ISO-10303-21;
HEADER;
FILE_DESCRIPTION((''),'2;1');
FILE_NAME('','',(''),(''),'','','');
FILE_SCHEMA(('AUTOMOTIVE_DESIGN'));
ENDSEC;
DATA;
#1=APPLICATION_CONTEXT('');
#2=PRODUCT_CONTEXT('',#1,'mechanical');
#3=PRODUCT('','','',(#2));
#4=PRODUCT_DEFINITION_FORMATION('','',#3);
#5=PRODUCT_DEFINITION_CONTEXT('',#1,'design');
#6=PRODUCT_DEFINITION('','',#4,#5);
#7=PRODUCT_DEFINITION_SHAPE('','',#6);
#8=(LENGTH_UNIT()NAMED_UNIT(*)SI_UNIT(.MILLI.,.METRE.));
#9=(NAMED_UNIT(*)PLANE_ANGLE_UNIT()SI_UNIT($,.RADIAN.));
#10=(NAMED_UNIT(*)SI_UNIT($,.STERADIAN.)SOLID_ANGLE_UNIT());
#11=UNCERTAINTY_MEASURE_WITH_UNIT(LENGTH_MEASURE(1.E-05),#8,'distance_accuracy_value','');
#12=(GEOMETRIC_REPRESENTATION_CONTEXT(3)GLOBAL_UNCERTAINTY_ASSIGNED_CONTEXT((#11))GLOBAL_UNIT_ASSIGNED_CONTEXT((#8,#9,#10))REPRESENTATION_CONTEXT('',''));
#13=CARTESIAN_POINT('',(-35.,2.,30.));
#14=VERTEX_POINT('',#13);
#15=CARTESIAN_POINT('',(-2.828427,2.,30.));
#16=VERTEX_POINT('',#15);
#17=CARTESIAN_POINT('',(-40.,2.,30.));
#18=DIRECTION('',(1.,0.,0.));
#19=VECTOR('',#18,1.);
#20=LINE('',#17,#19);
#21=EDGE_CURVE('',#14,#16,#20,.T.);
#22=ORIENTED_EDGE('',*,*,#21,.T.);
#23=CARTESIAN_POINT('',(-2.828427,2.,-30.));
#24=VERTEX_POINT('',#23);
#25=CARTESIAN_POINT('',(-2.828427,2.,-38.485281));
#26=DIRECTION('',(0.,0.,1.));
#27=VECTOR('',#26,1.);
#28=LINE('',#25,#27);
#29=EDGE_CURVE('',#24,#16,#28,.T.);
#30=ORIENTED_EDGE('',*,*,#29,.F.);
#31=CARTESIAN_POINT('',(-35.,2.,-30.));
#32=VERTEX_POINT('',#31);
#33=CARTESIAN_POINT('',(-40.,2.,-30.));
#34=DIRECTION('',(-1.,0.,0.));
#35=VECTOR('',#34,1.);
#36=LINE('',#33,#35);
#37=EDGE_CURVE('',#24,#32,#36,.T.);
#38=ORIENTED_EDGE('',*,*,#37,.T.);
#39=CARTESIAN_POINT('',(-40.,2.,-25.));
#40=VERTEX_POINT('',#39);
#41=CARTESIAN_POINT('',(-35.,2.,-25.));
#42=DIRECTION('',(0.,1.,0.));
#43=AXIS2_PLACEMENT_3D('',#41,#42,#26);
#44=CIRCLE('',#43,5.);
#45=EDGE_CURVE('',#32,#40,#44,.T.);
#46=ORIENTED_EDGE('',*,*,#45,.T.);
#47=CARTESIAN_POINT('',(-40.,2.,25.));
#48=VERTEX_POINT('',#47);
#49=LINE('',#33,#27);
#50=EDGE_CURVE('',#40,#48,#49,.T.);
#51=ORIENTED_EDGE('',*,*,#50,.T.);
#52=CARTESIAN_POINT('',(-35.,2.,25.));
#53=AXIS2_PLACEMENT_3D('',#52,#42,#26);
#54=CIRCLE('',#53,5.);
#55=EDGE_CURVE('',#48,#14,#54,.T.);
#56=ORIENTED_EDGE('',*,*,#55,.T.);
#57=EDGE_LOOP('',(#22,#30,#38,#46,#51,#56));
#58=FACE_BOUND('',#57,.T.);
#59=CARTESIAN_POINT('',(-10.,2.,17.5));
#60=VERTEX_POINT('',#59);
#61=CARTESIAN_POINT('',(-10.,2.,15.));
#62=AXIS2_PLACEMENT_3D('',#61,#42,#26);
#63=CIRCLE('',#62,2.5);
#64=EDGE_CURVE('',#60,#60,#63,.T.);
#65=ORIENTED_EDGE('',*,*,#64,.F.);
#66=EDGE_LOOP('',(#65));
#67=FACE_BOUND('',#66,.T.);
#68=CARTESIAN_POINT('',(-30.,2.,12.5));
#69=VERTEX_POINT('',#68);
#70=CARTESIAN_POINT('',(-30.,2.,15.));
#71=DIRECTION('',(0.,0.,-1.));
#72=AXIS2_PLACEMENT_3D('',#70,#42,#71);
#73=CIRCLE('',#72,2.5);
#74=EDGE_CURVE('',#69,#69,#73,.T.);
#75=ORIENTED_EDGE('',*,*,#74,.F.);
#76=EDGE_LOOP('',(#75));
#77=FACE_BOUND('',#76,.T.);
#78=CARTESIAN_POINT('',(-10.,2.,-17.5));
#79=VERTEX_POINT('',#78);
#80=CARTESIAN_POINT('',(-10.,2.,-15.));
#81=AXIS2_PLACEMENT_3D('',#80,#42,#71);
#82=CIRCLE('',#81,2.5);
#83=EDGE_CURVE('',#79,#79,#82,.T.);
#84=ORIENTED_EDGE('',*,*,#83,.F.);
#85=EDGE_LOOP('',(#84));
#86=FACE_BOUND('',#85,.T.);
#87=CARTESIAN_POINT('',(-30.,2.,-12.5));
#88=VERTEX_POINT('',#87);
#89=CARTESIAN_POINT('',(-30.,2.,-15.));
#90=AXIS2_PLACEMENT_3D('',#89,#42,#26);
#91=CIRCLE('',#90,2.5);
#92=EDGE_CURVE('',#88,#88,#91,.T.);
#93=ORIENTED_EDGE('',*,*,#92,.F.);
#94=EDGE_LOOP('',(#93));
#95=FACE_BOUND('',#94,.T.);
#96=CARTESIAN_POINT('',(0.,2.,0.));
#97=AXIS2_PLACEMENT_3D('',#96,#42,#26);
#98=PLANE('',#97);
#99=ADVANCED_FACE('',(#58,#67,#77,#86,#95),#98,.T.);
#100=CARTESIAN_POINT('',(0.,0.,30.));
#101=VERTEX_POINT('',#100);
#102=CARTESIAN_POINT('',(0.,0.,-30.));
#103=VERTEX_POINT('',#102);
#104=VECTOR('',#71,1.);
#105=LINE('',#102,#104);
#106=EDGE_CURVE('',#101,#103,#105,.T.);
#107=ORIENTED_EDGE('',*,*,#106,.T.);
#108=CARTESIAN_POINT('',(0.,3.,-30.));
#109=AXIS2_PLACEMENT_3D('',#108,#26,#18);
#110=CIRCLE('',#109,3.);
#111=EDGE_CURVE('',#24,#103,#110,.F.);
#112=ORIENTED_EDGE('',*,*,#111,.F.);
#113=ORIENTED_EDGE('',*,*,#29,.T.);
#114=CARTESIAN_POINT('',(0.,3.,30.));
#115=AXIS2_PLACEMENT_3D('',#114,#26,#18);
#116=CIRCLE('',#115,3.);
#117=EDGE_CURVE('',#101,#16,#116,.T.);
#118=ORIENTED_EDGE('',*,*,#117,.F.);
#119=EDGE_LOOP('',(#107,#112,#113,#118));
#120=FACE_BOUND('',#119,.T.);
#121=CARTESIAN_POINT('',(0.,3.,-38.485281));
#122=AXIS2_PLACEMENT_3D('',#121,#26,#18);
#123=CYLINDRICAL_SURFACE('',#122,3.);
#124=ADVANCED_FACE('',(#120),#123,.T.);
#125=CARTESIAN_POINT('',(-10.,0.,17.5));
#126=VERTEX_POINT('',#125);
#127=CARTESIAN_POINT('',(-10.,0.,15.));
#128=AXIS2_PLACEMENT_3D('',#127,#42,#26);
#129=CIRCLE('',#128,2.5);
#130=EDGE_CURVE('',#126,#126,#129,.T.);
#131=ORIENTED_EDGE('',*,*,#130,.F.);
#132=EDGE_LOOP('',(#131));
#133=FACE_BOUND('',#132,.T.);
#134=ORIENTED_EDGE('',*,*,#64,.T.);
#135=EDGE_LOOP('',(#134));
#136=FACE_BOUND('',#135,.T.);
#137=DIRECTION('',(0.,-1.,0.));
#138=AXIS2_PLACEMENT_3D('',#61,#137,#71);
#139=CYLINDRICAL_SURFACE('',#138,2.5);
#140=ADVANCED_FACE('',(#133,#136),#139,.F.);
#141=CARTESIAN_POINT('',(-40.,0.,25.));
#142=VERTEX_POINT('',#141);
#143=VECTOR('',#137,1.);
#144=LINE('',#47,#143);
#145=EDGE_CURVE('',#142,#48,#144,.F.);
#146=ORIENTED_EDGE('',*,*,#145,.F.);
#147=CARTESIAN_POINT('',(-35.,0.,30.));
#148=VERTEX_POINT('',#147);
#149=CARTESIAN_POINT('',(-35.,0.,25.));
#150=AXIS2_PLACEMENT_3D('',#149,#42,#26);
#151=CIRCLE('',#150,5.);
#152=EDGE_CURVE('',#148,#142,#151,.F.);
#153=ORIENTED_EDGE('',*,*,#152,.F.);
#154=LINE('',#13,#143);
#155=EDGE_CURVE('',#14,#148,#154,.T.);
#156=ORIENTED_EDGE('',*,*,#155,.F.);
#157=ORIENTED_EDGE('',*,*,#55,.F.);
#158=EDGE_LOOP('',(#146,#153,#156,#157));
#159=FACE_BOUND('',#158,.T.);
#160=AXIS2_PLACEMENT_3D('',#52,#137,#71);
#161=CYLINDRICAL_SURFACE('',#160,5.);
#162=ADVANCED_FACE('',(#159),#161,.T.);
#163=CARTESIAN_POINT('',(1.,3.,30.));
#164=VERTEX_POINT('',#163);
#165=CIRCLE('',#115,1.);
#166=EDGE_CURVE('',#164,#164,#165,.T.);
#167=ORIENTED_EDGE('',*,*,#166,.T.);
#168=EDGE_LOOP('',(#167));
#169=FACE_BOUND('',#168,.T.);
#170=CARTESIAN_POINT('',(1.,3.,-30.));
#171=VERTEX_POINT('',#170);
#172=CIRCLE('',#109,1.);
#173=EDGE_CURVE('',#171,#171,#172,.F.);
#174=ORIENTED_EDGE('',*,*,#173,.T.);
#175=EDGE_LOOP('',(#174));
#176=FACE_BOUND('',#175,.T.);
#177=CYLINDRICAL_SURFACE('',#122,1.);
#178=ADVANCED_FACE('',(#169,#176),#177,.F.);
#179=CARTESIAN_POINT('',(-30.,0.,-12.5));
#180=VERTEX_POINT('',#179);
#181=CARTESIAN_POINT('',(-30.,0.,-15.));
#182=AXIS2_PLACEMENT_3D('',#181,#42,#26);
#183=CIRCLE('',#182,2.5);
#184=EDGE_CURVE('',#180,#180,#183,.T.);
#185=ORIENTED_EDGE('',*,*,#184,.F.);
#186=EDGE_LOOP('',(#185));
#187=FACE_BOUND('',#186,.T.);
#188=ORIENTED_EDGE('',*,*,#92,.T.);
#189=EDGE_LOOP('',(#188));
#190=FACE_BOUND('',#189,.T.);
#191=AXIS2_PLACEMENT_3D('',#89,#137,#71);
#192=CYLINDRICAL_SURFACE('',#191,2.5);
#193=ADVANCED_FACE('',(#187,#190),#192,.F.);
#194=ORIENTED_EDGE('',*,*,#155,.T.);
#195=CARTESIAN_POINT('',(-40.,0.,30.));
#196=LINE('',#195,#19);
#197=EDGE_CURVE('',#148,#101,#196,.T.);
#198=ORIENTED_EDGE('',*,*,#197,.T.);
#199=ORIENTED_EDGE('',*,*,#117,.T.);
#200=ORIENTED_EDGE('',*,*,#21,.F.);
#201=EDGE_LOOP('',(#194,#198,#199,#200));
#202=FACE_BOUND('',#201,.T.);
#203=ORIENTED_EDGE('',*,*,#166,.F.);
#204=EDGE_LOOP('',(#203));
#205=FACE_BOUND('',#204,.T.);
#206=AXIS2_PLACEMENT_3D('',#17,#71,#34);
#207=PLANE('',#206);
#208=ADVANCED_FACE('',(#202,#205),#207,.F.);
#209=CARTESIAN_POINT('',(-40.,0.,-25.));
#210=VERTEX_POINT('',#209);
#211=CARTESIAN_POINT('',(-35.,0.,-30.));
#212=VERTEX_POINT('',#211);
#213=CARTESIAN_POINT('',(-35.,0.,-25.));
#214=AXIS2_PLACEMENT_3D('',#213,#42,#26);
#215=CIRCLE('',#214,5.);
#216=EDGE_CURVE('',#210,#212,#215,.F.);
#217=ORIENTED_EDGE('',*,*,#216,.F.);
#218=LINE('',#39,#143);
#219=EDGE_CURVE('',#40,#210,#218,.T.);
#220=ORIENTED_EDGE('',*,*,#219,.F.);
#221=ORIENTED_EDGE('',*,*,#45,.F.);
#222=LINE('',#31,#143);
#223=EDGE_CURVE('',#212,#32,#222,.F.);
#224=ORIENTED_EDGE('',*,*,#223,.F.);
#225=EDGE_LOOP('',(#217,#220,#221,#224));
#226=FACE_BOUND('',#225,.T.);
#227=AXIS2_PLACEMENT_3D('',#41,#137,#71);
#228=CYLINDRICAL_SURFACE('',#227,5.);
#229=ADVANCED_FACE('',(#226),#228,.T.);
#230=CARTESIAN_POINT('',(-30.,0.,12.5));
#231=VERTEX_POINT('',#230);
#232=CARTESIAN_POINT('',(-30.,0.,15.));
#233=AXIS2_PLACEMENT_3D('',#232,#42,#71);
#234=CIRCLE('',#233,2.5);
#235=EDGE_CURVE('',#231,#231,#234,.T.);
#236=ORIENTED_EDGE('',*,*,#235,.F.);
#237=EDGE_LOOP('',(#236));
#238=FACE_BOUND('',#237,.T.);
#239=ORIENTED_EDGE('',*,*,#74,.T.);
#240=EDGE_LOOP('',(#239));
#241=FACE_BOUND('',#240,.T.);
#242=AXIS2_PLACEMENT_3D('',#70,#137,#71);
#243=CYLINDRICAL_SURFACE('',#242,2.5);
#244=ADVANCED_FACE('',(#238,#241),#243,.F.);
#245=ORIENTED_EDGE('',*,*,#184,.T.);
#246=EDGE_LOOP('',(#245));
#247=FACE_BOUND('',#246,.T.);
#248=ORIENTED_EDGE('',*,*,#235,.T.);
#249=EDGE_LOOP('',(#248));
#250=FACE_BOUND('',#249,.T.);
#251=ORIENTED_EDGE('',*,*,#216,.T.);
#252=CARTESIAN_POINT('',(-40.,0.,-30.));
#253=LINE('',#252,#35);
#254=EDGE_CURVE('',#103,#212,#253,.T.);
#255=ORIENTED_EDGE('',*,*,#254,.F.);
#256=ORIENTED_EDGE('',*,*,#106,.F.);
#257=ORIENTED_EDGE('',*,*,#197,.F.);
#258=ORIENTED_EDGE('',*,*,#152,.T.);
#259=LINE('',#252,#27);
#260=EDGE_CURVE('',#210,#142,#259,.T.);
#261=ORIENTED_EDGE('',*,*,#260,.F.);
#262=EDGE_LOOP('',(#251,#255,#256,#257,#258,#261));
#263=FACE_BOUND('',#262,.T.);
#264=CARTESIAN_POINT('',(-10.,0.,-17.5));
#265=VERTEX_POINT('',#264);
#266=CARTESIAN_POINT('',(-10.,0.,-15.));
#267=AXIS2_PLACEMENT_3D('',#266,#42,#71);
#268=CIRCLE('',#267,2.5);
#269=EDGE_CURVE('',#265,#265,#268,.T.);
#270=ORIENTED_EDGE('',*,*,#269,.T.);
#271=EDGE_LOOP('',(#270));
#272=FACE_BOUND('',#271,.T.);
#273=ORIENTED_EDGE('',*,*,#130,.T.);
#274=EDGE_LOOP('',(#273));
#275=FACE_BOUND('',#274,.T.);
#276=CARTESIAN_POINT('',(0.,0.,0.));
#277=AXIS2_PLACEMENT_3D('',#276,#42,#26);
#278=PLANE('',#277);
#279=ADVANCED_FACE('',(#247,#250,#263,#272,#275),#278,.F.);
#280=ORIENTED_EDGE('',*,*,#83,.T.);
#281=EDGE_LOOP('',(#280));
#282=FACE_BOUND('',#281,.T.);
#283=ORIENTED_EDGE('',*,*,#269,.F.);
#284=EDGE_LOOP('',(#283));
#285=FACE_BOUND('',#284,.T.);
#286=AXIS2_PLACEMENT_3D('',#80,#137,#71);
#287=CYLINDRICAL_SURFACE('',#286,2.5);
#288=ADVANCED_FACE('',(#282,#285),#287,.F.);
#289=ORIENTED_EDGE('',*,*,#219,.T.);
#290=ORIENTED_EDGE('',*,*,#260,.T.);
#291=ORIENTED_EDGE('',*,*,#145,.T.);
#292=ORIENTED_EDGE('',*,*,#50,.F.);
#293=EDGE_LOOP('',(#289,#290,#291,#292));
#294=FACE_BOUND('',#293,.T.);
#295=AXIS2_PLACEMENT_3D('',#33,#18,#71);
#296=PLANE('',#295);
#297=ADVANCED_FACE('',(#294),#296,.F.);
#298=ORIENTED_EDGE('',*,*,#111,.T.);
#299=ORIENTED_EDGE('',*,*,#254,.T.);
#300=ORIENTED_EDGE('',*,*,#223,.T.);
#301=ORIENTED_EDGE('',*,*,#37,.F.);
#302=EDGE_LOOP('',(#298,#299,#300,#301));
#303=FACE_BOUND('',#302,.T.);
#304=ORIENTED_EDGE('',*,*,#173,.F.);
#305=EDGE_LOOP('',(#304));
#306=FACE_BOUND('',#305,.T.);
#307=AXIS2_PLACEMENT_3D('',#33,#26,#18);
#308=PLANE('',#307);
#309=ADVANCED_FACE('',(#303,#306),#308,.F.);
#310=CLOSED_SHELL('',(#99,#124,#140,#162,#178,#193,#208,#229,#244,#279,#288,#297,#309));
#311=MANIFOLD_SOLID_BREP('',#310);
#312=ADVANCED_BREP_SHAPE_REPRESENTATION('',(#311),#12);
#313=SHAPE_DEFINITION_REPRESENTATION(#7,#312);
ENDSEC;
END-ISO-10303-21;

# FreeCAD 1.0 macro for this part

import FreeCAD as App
import Part
import Sketcher
from FreeCAD import Vector


def edges_at(feature, points):
    """Names of the edges that pass closest to the given points."""
    edges = feature.Shape.Edges
    near = lambda p: min(range(len(edges)), key=lambda i: edges[i].distToShape(Part.Vertex(*p))[0])
    return sorted({f"Edge{near(p) + 1}" for p in points})

doc = App.newDocument("Part")
body = doc.addObject("PartDesign::Body", "Body")

# Sketch on XZ plane
sketch1 = doc.addObject("Sketcher::SketchObject", "Sketch")
body.addObject(sketch1)
sketch1.AttachmentSupport = (doc.XZ_Plane, [""])
sketch1.MapMode = "FlatFace"
sketch1.addGeometry([
    Part.LineSegment(Vector(-40, -30, 0), Vector(-40, 30, 0)),  # 0
    Part.LineSegment(Vector(-40, 30, 0), Vector(0, 30, 0)),  # 1
    Part.LineSegment(Vector(0, 30, 0), Vector(0, -30, 0)),  # 2
    Part.LineSegment(Vector(0, -30, 0), Vector(-40, -30, 0)),  # 3
    Part.Circle(Vector(-30, 15, 0), Vector(0, 0, 1), 2.5),  # 4
    Part.Circle(Vector(-10, 15, 0), Vector(0, 0, 1), 2.5),  # 5
    Part.Circle(Vector(-30, -15, 0), Vector(0, 0, 1), 2.5),  # 6
    Part.Circle(Vector(-10, -15, 0), Vector(0, 0, 1), 2.5),  # 7
], False)
sketch1.addConstraint([
    Sketcher.Constraint("Coincident", 0, 2, 1, 1),
    Sketcher.Constraint("Coincident", 1, 2, 2, 1),
    Sketcher.Constraint("Coincident", 2, 2, 3, 1),
    Sketcher.Constraint("Coincident", 3, 2, 0, 1),
    Sketcher.Constraint("Vertical", 0),
    Sketcher.Constraint("Horizontal", 1),
    Sketcher.Constraint("Vertical", 2),
    Sketcher.Constraint("Horizontal", 3),
    Sketcher.Constraint("Equal", 4, 5),
    Sketcher.Constraint("Equal", 5, 6),
    Sketcher.Constraint("Equal", 6, 7),
    Sketcher.Constraint("Symmetric", 1, 2, 2, 2, -1, 1),
    Sketcher.Constraint("Symmetric", 4, 3, 6, 3, -1),
    Sketcher.Constraint("Symmetric", 5, 3, 7, 3, -1),
    Sketcher.Constraint("Horizontal", 4, 3, 5, 3),
    Sketcher.Constraint("Diameter", 4, 5.0),
    Sketcher.Constraint("DistanceX", 1, 1, 1, 2, 40.0),
    Sketcher.Constraint("DistanceY", 0, 1, 0, 2, 60.0),
    Sketcher.Constraint("DistanceX", 4, 3, -1, 1, 30.0),
    Sketcher.Constraint("DistanceY", -1, 1, 4, 3, 15.0),
    Sketcher.Constraint("DistanceX", 5, 3, -1, 1, 10.0),
])
pad1 = doc.addObject("PartDesign::Pad", "Pad")
body.addObject(pad1)
pad1.Profile = sketch1
pad1.Length = 2
pad1.Reversed = True
doc.recompute()

fillet = doc.addObject("PartDesign::Fillet", "Fillet")
body.addObject(fillet)
fillet.Base = (pad1, edges_at(pad1, [(-40, 1, 30), (-40, 1, -30)]))
fillet.Radius = 5

# Sketch on XY plane
sketch2 = doc.addObject("Sketcher::SketchObject", "Sketch001")
body.addObject(sketch2)
sketch2.AttachmentSupport = (doc.XY_Plane, [""])
sketch2.MapMode = "FlatFace"
sketch2.AttachmentOffset = App.Placement(Vector(0, 0, 30), App.Rotation())
sketch2.addGeometry([
    Part.Circle(Vector(0, 3, 0), Vector(0, 0, 1), 3),
    Part.Circle(Vector(0, 3, 0), Vector(0, 0, 1), 1),
], False)
sketch2.addConstraint([
    Sketcher.Constraint("Coincident", 1, 3, 0, 3),
    Sketcher.Constraint("PointOnObject", 0, 3, -2),
    Sketcher.Constraint("Diameter", 0, 6.0),
    Sketcher.Constraint("Diameter", 1, 2.0),
    Sketcher.Constraint("DistanceY", -1, 1, 0, 3, 3.0),
])
pad2 = doc.addObject("PartDesign::Pad", "Pad001")
body.addObject(pad2)
pad2.Profile = sketch2
pad2.Length = 60
pad2.Reversed = True

doc.recompute()
